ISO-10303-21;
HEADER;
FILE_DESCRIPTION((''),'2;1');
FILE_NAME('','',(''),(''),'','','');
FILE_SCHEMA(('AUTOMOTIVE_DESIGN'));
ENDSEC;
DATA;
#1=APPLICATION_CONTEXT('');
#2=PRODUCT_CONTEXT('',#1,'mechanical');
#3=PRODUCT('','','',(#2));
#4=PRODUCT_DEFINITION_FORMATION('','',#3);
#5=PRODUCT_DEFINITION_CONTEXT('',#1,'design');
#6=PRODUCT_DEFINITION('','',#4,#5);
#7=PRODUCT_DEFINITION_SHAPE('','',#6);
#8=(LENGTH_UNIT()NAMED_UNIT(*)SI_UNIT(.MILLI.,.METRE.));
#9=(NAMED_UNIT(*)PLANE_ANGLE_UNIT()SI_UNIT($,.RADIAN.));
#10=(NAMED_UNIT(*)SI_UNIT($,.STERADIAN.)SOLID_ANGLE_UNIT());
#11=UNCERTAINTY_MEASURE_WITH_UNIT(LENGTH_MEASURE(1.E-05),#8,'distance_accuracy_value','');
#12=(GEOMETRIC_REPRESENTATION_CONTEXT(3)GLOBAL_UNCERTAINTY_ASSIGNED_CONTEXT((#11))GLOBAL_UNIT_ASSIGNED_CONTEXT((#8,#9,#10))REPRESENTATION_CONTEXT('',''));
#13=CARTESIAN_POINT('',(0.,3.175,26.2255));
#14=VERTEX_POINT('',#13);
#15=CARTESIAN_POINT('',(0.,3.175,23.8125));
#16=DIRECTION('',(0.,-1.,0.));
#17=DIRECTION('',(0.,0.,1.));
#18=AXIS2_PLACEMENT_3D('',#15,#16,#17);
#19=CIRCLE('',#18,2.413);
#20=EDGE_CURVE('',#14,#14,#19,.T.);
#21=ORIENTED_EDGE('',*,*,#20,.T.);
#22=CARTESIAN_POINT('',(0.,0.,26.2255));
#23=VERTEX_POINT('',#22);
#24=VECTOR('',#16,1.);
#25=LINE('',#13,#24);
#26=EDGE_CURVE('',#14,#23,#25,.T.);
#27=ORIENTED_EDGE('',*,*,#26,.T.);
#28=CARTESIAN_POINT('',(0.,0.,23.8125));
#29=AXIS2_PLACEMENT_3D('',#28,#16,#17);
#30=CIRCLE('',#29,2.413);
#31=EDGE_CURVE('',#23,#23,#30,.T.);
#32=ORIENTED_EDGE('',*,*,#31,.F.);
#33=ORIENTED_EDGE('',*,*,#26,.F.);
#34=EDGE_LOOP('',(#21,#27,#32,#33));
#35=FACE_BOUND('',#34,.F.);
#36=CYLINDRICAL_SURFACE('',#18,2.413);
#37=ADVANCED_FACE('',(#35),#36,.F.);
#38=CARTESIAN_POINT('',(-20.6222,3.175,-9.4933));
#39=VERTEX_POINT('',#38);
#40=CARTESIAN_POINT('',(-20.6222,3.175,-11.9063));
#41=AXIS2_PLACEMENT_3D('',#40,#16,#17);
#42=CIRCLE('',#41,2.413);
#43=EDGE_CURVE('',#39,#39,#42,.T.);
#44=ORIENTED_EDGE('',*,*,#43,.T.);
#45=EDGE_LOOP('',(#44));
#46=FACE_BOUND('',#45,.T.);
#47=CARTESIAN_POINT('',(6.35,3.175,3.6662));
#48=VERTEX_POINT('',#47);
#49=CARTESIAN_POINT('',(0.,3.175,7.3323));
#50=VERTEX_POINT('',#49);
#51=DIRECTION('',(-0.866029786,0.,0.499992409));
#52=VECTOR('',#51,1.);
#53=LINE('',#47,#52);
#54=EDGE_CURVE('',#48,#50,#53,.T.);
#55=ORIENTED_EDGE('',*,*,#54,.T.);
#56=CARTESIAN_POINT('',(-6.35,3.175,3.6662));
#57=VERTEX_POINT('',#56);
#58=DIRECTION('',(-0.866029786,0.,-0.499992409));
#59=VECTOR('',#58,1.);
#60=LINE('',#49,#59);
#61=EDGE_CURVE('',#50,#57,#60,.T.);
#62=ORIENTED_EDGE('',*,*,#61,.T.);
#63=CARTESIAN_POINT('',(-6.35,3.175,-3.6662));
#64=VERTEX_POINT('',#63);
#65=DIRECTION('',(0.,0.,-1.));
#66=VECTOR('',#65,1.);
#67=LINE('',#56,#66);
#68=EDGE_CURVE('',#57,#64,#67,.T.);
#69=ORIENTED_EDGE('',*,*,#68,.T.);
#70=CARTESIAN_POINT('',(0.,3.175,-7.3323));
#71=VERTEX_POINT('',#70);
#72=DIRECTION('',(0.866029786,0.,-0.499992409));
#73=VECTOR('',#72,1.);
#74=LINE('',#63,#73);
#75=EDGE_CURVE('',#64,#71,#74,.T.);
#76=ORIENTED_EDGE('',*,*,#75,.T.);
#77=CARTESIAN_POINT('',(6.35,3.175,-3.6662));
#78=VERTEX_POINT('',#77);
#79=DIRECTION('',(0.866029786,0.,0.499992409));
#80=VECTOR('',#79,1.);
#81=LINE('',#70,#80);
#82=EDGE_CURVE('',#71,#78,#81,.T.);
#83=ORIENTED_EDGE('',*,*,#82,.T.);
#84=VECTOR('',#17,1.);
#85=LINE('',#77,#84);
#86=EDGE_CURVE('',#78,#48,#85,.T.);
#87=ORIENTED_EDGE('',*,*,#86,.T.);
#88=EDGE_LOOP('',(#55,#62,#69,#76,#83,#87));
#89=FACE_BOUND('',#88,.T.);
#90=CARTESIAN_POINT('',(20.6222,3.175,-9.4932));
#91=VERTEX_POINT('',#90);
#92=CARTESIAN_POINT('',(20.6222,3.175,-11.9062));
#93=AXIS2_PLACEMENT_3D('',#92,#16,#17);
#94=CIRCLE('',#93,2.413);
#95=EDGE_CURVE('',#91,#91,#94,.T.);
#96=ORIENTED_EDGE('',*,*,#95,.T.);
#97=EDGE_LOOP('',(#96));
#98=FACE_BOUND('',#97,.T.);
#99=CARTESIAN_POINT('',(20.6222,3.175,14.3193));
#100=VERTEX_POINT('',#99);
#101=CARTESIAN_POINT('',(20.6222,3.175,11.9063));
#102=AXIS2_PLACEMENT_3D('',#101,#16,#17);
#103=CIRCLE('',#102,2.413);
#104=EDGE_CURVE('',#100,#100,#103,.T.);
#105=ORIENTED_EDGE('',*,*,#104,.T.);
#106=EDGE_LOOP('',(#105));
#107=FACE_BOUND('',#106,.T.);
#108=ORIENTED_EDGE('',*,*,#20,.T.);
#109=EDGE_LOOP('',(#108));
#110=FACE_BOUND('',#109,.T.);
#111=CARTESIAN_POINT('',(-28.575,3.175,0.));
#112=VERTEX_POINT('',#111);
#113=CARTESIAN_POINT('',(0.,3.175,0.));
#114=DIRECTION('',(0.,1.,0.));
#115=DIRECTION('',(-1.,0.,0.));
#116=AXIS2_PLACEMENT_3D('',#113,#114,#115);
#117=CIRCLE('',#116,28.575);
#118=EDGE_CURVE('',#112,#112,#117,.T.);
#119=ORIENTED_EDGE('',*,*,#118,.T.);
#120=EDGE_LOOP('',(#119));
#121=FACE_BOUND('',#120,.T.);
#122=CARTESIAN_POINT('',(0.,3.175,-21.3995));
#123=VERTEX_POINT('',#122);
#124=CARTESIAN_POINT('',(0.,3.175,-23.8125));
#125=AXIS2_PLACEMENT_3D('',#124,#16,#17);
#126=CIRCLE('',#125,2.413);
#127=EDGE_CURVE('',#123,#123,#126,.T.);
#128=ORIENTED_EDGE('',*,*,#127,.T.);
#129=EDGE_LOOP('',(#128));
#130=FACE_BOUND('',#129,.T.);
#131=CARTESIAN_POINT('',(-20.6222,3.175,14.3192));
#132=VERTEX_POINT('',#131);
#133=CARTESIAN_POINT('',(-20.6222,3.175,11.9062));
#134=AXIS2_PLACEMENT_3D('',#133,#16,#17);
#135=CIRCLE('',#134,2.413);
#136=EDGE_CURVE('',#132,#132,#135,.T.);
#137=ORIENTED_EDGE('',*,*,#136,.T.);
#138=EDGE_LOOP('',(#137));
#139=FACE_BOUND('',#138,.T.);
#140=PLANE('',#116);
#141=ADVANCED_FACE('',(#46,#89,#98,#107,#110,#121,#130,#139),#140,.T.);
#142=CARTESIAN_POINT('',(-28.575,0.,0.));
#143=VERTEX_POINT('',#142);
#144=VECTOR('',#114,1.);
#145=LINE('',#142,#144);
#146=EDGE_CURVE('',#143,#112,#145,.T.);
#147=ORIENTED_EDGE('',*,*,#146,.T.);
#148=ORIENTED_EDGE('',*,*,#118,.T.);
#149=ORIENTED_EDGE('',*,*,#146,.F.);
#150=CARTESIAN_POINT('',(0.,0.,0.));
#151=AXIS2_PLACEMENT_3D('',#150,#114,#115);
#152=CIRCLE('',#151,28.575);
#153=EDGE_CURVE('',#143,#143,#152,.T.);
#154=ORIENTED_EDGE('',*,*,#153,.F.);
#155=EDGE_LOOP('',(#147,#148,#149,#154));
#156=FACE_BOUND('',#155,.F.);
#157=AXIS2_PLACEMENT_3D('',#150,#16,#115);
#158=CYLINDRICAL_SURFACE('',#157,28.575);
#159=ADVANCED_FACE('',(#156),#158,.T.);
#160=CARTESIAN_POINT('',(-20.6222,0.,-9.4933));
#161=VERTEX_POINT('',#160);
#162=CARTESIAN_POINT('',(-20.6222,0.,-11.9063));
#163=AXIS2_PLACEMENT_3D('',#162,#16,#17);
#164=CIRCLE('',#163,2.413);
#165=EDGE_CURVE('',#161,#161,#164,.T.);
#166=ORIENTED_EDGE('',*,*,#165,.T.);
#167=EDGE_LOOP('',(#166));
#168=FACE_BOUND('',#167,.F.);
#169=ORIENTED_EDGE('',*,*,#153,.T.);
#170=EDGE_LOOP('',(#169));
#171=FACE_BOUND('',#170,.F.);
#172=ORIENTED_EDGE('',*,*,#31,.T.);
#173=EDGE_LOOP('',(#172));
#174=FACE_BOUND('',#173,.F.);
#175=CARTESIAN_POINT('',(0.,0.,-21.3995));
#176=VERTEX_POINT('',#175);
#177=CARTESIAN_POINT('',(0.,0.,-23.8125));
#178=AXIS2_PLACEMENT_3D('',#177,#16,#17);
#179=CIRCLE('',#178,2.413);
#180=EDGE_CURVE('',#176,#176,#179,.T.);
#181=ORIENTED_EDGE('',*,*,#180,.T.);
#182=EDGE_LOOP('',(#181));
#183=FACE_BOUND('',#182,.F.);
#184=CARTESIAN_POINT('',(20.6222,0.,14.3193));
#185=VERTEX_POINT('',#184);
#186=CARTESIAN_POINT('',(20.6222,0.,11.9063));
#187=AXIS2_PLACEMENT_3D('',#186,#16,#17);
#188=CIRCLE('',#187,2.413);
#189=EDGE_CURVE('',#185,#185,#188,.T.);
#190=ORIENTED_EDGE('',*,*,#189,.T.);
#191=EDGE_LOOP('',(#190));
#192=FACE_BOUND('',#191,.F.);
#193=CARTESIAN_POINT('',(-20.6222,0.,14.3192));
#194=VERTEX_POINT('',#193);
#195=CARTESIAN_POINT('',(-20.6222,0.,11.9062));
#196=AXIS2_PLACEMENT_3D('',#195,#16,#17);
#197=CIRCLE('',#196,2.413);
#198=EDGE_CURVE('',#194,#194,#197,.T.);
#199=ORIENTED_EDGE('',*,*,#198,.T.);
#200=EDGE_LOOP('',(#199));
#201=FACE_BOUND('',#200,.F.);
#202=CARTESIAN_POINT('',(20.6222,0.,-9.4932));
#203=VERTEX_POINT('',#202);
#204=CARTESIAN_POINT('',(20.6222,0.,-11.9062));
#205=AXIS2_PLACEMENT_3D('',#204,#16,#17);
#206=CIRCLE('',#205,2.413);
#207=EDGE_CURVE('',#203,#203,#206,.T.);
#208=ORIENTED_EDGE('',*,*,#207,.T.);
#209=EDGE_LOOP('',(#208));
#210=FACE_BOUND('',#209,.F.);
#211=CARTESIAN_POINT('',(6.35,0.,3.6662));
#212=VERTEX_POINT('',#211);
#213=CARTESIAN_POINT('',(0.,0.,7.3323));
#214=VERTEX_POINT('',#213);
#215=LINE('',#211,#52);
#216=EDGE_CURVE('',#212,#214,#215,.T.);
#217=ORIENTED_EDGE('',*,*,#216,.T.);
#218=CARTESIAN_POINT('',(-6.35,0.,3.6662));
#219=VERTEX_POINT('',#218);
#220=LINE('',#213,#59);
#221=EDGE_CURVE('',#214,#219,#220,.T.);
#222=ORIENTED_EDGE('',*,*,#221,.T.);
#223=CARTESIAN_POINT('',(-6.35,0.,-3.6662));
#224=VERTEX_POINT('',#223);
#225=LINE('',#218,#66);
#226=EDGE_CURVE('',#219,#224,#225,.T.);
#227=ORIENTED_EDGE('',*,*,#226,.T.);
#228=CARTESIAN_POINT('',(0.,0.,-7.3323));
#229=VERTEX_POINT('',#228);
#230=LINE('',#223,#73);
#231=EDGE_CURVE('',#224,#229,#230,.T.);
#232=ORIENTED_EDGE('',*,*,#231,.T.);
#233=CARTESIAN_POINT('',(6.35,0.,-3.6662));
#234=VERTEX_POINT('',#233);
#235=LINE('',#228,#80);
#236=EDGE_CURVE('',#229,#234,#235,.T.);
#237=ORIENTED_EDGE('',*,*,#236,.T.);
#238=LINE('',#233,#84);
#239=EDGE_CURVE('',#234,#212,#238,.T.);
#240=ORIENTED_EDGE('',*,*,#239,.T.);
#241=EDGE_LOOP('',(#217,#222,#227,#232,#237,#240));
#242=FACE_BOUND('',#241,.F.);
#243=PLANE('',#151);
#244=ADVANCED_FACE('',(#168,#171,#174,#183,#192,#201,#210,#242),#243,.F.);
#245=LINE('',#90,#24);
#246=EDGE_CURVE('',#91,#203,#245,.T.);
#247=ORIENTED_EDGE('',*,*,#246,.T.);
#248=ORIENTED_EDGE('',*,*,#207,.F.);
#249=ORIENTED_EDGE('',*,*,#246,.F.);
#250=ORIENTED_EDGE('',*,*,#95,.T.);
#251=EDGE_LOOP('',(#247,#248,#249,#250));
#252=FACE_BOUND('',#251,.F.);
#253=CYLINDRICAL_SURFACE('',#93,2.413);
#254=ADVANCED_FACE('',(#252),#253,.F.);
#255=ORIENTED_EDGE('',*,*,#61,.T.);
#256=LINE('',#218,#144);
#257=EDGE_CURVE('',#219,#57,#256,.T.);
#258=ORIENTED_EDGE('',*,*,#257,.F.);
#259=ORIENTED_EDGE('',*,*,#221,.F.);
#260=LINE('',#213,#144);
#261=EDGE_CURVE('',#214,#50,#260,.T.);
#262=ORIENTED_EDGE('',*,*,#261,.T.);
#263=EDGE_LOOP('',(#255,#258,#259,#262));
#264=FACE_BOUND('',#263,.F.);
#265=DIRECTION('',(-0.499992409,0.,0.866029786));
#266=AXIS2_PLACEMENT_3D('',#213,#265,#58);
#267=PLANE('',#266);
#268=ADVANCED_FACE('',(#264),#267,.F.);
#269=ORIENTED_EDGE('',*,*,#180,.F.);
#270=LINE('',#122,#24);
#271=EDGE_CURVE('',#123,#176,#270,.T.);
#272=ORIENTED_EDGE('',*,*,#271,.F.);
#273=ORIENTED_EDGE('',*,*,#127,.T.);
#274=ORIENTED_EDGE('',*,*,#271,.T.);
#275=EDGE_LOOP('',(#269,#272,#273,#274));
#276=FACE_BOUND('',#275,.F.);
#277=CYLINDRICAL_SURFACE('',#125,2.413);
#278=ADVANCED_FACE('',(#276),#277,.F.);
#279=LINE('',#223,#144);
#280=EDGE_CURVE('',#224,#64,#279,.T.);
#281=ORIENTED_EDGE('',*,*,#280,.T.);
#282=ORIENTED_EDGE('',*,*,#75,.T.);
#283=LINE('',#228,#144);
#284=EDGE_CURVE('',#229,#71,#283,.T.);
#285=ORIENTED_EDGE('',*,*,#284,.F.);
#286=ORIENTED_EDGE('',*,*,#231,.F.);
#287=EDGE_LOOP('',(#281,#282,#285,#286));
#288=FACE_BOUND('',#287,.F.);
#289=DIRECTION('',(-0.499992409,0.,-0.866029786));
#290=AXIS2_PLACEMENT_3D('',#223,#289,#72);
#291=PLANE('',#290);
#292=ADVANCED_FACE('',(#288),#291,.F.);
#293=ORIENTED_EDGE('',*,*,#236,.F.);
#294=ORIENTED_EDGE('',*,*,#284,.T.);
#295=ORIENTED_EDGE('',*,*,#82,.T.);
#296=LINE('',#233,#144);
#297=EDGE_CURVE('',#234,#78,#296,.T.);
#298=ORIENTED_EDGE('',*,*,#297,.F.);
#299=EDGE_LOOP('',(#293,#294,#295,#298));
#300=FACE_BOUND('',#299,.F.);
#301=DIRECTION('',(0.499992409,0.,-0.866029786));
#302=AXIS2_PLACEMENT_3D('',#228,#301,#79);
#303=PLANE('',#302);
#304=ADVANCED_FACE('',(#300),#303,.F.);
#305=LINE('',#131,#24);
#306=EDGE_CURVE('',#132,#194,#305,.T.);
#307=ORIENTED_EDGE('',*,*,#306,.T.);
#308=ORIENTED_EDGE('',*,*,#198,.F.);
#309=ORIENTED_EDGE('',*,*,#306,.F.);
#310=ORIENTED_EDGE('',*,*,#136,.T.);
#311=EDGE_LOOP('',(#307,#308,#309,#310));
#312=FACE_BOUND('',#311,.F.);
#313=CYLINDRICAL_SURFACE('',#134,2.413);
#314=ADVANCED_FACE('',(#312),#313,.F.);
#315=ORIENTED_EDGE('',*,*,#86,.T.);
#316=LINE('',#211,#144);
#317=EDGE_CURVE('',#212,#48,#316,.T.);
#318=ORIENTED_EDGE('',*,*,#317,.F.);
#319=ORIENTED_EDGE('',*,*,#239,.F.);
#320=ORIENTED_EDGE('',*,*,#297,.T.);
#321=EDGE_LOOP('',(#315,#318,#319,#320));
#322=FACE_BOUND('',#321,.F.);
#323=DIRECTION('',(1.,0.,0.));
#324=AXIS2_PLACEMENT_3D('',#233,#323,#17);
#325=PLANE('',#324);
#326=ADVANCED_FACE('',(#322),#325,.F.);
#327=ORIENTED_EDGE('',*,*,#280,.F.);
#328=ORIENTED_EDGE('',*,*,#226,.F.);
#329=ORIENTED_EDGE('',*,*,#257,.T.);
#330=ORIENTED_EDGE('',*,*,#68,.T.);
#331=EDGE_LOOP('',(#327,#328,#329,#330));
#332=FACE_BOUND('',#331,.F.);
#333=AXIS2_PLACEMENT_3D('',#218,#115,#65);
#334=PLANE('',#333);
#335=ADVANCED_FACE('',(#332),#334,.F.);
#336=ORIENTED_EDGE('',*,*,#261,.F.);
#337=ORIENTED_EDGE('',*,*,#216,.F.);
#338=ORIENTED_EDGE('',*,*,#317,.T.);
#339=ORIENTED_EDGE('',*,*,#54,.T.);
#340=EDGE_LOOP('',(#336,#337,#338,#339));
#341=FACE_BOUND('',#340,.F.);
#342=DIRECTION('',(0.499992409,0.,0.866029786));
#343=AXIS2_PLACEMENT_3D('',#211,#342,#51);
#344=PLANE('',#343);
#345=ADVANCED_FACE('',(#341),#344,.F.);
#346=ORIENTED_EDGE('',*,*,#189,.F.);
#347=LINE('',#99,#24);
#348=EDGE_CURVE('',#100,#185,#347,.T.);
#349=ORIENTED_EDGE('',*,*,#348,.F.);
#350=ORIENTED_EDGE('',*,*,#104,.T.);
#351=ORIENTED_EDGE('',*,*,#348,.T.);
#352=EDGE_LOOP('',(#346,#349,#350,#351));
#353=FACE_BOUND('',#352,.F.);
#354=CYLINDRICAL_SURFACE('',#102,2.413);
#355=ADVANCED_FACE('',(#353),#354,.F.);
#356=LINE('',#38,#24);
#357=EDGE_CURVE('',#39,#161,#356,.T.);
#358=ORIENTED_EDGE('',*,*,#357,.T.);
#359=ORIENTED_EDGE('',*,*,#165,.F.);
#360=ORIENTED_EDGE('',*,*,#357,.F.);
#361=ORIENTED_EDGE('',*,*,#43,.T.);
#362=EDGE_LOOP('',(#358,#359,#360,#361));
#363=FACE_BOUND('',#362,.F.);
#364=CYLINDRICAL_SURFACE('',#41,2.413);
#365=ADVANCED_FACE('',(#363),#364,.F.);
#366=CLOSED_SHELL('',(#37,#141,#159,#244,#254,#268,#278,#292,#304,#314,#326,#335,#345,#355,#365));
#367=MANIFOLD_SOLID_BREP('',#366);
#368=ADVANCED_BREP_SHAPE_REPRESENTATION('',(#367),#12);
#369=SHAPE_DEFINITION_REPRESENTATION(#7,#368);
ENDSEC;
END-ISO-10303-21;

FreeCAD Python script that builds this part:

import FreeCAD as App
import Part
import Sketcher
from FreeCAD import Vector
Q = App.Units.Quantity


def add_polygon(sketch, points):
    """Adds a closed chain of lines whose ends are joined by coincident constraints."""
    first, n = sketch.GeometryCount, len(points)
    for a, b in zip(points, points[1:] + points[:1]):
        sketch.addGeometry(Part.LineSegment(App.Vector(*a, 0), App.Vector(*b, 0)), False)
    for i in range(n):
        sketch.addConstraint(Sketcher.Constraint("Coincident", first + i, 2, first + (i + 1) % n, 1))

doc = App.newDocument("Part")
body = doc.addObject("PartDesign::Body", "Body")

# Sketch on XZ plane
sketch1 = body.newObject("Sketcher::SketchObject", "Sketch")
sketch1.AttachmentSupport = (doc.getObject("XZ_Plane"), [""])
sketch1.MapMode = "FlatFace"
sketch1.addGeometry(Part.Circle(Vector(0, 0, 0), Vector(0, 0, 1), 29), False)  # 0
add_polygon(sketch1, [(-6, -4), (0, -7), (6, -4), (6, 4), (0, 7), (-6, 4)])  # lines 1-6
sketch1.addConstraint([
    Sketcher.Constraint("Vertical", 3),
    Sketcher.Constraint("Vertical", 6),
    Sketcher.Constraint("Coincident", 0, 3, -1, 1),
    Sketcher.Constraint("Symmetric", 1, 2, 4, 2, -1, 1),
    Sketcher.Constraint("Symmetric", 2, 2, 5, 2, -1, 1),
    Sketcher.Constraint("PointOnObject", 1, 2, -2),
    Sketcher.Constraint("Parallel", 1, 4),
    Sketcher.Constraint("Horizontal", 3, 2, 5, 2),
    Sketcher.Constraint("Diameter", 0, Q("2.25 in")),
    Sketcher.Constraint("DistanceX", 5, 2, 3, 2, Q("0.5 in")),
    Sketcher.Constraint("Angle", 1, Q("-29.9995 deg")),
    Sketcher.Constraint("DistanceY", 1, 2, 3, 2, Q("0.433 in")),
])
pad1 = body.newObject("PartDesign::Pad", "Pad")
pad1.Profile = sketch1
pad1.Length = Q("0.125 in")
pad1.Reversed = True

# Sketch on XZ plane
sketch2 = body.newObject("Sketcher::SketchObject", "Sketch001")
sketch2.AttachmentSupport = (doc.getObject("XZ_Plane"), [""])
sketch2.MapMode = "FlatFace"
sketch2.AttachmentOffset = App.Placement(Vector(0, 0, -0.125 * 25.4), App.Rotation())
sketch2.addGeometry([
    Part.Circle(Vector(0, -23.8, 0), Vector(0, 0, 1), 2.4),  # 0
    Part.Circle(Vector(-20.6, -11.9, 0), Vector(0, 0, 1), 2.4),  # 1
    Part.Circle(Vector(-20.6, 11.9, 0), Vector(0, 0, 1), 2.4),  # 2
    Part.Circle(Vector(0, 23.8, 0), Vector(0, 0, 1), 2.4),  # 3
    Part.Circle(Vector(20.6, 11.9, 0), Vector(0, 0, 1), 2.4),  # 4
    Part.Circle(Vector(20.6, -11.9, 0), Vector(0, 0, 1), 2.4),  # 5
], False)
sketch2.addConstraint([
    Sketcher.Constraint("Equal", 0, 1),
    Sketcher.Constraint("Equal", 1, 2),
    Sketcher.Constraint("Equal", 2, 3),
    Sketcher.Constraint("Equal", 3, 4),
    Sketcher.Constraint("Equal", 4, 5),
    Sketcher.Constraint("Symmetric", 0, 3, 3, 3, -1, 1),
    Sketcher.Constraint("Symmetric", 1, 3, 4, 3, -1, 1),
    Sketcher.Constraint("Symmetric", 2, 3, 5, 3, -1, 1),
    Sketcher.Constraint("Symmetric", 2, 3, 4, 3, -2),
    Sketcher.Constraint("PointOnObject", 0, 3, -2),
    Sketcher.Constraint("Diameter", 0, Q("0.19 in")),
    Sketcher.Constraint("DistanceY", 0, 3, -1, 1, Q("0.9375 in")),
    Sketcher.Constraint("DistanceY", 1, 3, -1, 1, Q("0.468752 in")),
    Sketcher.Constraint("DistanceX", 1, 3, -1, 1, Q("0.8119 in")),
])
doc.recompute()
hole = body.newObject("PartDesign::Hole", "Hole")
hole.Profile = sketch2
hole.ThreadType = "None"
hole.Diameter = Q("0.19 in")
hole.DepthType = "ThroughAll"
hole.Reversed = True

doc.recompute()
